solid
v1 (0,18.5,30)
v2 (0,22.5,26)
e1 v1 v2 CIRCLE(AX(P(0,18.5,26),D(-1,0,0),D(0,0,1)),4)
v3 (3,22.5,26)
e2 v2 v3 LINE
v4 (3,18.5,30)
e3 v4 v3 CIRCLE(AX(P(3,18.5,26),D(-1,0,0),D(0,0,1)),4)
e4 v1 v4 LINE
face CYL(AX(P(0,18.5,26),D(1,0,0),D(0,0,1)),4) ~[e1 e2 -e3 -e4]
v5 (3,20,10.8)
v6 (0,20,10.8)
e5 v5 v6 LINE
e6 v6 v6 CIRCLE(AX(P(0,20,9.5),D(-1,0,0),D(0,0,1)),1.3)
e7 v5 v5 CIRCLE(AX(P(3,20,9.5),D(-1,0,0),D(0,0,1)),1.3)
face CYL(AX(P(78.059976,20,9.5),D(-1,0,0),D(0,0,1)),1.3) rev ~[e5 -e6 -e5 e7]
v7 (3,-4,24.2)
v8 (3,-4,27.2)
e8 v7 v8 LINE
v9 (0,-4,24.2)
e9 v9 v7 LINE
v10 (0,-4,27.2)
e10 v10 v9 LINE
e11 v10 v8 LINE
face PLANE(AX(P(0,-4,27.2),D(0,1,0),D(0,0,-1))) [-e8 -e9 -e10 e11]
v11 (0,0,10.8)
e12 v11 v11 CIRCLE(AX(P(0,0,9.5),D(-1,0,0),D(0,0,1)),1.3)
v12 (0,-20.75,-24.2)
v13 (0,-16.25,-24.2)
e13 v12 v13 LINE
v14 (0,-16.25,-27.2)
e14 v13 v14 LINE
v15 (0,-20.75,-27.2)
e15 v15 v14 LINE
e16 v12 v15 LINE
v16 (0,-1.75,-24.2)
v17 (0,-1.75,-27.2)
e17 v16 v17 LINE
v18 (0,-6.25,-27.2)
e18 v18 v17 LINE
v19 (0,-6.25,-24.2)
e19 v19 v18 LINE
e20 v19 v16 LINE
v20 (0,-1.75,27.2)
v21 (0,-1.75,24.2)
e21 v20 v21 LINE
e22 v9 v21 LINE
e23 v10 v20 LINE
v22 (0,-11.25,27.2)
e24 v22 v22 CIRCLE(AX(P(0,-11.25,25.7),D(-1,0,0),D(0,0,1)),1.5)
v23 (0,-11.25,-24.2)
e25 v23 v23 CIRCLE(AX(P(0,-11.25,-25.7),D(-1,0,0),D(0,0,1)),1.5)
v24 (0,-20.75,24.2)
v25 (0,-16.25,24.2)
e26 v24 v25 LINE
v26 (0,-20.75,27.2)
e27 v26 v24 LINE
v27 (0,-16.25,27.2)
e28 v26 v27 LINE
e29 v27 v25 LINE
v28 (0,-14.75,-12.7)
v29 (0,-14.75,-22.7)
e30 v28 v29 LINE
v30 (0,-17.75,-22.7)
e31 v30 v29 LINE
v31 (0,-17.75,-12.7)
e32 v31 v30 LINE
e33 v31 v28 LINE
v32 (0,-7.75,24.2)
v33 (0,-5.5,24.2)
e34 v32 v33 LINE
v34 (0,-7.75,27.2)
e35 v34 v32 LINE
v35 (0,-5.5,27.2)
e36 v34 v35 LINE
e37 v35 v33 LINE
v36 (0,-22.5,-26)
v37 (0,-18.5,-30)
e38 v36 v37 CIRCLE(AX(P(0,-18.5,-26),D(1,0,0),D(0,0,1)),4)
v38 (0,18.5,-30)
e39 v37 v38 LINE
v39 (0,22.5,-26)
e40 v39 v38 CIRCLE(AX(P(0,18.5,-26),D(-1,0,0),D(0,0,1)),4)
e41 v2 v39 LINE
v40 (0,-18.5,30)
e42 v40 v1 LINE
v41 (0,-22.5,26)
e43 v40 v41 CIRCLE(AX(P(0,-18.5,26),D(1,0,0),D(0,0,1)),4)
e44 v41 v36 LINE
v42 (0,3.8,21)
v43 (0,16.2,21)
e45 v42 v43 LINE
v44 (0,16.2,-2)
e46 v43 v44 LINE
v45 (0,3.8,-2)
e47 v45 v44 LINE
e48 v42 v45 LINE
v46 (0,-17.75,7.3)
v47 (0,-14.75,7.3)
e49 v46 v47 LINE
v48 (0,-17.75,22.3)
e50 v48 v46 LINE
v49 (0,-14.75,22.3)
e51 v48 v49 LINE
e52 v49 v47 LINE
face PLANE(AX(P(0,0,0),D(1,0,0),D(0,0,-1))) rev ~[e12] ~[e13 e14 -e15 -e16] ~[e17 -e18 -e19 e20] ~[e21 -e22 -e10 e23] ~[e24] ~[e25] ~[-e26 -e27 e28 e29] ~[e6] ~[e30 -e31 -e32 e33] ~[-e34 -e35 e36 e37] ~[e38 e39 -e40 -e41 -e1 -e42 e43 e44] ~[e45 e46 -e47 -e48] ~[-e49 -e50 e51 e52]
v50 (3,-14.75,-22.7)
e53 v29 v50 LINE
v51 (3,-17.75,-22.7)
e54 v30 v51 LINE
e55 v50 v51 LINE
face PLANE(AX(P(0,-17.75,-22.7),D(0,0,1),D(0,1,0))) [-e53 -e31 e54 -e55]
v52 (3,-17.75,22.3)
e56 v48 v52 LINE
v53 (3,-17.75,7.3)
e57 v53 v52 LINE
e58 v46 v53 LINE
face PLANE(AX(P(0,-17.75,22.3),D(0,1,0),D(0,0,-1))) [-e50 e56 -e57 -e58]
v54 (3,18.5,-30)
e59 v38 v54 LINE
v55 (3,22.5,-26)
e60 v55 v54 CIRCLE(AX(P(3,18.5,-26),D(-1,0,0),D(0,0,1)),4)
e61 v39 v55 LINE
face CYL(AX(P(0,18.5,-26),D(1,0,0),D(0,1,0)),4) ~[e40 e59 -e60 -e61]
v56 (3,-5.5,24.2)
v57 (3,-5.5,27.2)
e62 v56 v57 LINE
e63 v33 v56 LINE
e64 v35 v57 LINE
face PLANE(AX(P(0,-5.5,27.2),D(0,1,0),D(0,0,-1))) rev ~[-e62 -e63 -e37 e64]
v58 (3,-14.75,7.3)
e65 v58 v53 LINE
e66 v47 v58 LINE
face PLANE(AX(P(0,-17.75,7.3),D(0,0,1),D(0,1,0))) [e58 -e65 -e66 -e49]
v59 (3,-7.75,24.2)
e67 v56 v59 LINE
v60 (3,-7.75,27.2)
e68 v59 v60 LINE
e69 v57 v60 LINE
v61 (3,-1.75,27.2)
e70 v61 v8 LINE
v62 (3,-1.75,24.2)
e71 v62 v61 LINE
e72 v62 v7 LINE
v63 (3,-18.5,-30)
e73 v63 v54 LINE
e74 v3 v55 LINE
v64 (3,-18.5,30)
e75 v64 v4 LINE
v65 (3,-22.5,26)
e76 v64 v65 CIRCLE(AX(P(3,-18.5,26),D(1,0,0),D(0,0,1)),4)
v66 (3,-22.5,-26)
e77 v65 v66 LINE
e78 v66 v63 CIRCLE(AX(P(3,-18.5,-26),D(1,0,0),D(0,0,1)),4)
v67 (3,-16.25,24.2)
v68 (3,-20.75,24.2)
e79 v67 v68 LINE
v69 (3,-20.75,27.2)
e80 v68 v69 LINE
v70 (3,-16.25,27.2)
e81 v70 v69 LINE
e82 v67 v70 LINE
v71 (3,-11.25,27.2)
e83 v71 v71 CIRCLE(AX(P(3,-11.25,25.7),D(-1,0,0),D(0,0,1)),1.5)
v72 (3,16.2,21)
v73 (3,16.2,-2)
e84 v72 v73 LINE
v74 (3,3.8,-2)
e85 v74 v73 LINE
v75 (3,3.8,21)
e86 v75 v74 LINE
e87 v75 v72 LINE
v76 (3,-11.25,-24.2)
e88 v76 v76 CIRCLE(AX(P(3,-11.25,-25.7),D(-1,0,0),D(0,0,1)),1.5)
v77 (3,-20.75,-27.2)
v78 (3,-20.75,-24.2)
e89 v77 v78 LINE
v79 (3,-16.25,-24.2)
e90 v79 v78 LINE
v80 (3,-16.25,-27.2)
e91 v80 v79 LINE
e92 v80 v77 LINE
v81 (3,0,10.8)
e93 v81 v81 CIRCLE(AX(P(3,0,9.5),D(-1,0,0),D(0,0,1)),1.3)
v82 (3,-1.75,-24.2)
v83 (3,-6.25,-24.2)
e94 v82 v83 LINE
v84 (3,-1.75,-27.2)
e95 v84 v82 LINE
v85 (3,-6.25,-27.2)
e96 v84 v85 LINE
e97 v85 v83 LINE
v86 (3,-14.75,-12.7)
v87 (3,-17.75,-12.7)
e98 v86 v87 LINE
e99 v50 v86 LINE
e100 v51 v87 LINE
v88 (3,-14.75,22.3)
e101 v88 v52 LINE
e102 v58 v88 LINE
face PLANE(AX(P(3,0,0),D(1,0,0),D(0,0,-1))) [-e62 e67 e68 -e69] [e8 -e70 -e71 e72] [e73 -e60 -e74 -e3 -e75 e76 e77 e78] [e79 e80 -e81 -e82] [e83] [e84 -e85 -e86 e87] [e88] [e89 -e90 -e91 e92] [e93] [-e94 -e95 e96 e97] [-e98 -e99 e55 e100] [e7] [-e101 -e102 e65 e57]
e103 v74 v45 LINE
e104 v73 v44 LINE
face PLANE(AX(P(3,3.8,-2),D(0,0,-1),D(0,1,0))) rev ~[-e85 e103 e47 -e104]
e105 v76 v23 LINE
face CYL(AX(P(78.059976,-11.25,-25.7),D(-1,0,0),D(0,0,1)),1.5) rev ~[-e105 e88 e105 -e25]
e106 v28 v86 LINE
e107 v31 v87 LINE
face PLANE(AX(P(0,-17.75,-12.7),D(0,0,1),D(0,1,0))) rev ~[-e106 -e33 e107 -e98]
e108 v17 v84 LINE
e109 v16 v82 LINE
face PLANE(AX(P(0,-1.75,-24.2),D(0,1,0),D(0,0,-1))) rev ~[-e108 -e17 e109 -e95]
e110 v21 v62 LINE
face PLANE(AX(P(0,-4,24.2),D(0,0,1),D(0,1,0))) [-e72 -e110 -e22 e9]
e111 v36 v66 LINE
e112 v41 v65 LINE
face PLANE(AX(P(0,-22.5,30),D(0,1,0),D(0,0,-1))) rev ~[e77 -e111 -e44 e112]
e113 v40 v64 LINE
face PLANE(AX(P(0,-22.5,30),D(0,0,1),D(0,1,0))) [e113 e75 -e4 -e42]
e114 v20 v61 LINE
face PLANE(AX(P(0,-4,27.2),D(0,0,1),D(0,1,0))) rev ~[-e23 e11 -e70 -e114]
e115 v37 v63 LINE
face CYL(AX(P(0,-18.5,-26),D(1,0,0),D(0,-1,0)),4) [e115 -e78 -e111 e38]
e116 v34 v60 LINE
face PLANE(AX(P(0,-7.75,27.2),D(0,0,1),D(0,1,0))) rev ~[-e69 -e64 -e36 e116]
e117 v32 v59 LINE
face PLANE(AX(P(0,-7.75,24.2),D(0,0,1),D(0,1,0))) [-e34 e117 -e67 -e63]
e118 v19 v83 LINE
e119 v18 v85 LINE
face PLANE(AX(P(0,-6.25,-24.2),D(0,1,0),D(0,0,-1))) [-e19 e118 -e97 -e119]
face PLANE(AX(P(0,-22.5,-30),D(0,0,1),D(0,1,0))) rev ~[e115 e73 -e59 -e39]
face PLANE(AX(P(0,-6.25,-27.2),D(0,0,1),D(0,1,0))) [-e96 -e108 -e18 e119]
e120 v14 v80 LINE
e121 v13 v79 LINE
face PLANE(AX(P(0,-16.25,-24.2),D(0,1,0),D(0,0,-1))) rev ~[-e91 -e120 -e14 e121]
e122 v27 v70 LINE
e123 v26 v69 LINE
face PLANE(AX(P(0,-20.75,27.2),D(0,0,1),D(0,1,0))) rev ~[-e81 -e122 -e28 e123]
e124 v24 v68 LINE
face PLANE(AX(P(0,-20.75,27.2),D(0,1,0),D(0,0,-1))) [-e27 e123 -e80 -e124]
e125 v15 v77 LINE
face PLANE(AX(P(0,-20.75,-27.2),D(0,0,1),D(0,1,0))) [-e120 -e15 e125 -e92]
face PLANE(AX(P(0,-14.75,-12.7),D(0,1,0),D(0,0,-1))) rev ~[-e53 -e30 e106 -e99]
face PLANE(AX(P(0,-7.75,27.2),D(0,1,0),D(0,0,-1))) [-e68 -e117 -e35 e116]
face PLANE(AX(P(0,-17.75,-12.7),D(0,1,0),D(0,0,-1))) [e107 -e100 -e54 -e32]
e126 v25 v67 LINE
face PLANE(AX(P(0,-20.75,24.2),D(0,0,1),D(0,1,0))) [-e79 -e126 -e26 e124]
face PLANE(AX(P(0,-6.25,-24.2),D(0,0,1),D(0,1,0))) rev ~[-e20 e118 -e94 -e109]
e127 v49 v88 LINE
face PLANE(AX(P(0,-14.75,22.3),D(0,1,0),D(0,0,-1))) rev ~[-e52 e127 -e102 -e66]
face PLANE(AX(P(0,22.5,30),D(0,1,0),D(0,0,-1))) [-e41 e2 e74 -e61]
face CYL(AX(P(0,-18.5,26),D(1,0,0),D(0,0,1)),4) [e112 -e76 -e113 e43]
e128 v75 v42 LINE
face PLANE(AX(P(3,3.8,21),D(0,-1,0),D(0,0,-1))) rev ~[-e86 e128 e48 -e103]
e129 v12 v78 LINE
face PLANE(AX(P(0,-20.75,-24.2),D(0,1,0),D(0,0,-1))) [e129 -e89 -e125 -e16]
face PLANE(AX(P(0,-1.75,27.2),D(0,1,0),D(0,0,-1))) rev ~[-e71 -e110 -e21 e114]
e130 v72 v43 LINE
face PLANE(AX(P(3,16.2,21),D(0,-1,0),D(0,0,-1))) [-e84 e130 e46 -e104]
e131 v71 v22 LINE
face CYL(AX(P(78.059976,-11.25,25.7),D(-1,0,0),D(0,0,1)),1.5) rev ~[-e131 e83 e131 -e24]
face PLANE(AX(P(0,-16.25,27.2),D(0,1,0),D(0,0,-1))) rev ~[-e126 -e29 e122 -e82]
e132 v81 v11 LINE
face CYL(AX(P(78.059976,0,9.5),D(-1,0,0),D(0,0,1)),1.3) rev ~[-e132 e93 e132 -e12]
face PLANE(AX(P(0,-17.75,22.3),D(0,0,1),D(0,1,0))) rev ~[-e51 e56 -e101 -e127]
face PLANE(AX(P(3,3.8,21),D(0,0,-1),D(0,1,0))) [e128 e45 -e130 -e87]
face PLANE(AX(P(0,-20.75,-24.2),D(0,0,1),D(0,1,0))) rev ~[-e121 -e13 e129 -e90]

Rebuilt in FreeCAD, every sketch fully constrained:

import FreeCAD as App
import Part
import Sketcher
from FreeCAD import Vector


def edges_at(feature, points):
    """Names of the edges that pass closest to the given points."""
    edges = feature.Shape.Edges
    near = lambda p: min(range(len(edges)), key=lambda i: edges[i].distToShape(Part.Vertex(*p))[0])
    return sorted({f"Edge{near(p) + 1}" for p in points})


def add_polygon(sketch, points):
    """Adds a closed chain of lines whose ends are joined by coincident constraints."""
    first, n = sketch.GeometryCount, len(points)
    for a, b in zip(points, points[1:] + points[:1]):
        sketch.addGeometry(Part.LineSegment(App.Vector(*a, 0), App.Vector(*b, 0)), False)
    for i in range(n):
        sketch.addConstraint(Sketcher.Constraint("Coincident", first + i, 2, first + (i + 1) % n, 1))

doc = App.newDocument("Part")
params = doc.addObject("Spreadsheet::Sheet", "Params")
for row, (alias, value) in enumerate([
    ("sketch1_width", "45 mm"),
    ("sketch1_height", "60 mm"),
    ("pad1_length", "3 mm"),
    ("sketch2_diameter", "3 mm"),
    ("hole_diameter", "3 mm"),
    ("sketch3_height", "3 mm"),
    ("sketch3_width", "4.5 mm"),
    ("sketch3_width2", "2.25 mm"),
    ("sketch4_height", "23 mm"),
    ("sketch4_width", "12.4 mm"),
    ("sketch5_diameter", "2.6 mm"),
    ("hole2_diameter", "2.6 mm"),
    ("fillet_radius", "4 mm"),
    ("sketch6_width", "3 mm"),
    ("sketch6_height", "15 mm"),
    ("sketch6_height2", "10 mm"),
], start=1):
    params.set(f"A{row}", alias)
    params.set(f"B{row}", "=" + value)
    params.setAlias(f"B{row}", alias)

body = doc.addObject("PartDesign::Body", "Body")

sketch1 = body.newObject("Sketcher::SketchObject", "Sketch")
sketch1.AttachmentSupport = (doc.getObject("YZ_Plane"), [""])
sketch1.MapMode = "FlatFace"
add_polygon(sketch1, [(22, 30), (-22, 30), (-22, -30), (22, -30)])
sketch1.addConstraint(Sketcher.Constraint("Horizontal", 0))
sketch1.addConstraint(Sketcher.Constraint("Vertical", 1))
sketch1.addConstraint(Sketcher.Constraint("Horizontal", 2))
sketch1.addConstraint(Sketcher.Constraint("Vertical", 3))
sketch1.addConstraint(Sketcher.Constraint("Symmetric", 0, 2, 2, 2, -1, 1))
sketch1.addConstraint(Sketcher.Constraint("DistanceX", 0, 2, 0, 1, 45.0))
sketch1.addConstraint(Sketcher.Constraint("DistanceY", 1, 2, 1, 1, 60.0))
sketch1.setExpression("Constraints[9]", "Params.sketch1_width")
sketch1.setExpression("Constraints[10]", "Params.sketch1_height")
pad1 = body.newObject("PartDesign::Pad", "Pad")
pad1.Profile = sketch1
pad1.setExpression("Length", "Params.pad1_length")

sketch2 = body.newObject("Sketcher::SketchObject", "Sketch001")
sketch2.AttachmentSupport = (doc.getObject("YZ_Plane"), [""])
sketch2.MapMode = "FlatFace"
sketch2.AttachmentOffset = App.Placement(Vector(0, 0, 3), App.Rotation())
sketch2.addGeometry(Part.Circle(Vector(-11.2, 25.7, 0), Vector(0, 0, 1), 1.5), False)
sketch2.addGeometry(Part.Circle(Vector(-11.2, -25.7, 0), Vector(0, 0, 1), 1.5), False)
sketch2.addConstraint(Sketcher.Constraint("Equal", 0, 1))
sketch2.addConstraint(Sketcher.Constraint("Symmetric", 0, 3, 1, 3, -1))
sketch2.addConstraint(Sketcher.Constraint("Diameter", 0, 3.0))
sketch2.addConstraint(Sketcher.Constraint("DistanceY", -1, 1, 0, 3, 25.7))
sketch2.addConstraint(Sketcher.Constraint("DistanceX", 0, 3, -1, 1, 11.25))
sketch2.setExpression("Constraints[2]", "Params.sketch2_diameter")
doc.recompute()
hole = body.newObject("PartDesign::Hole", "Hole")
hole.Profile = sketch2
hole.ThreadType = "None"
hole.setExpression("Diameter", "Params.hole_diameter")
hole.DepthType = "ThroughAll"

sketch3 = body.newObject("Sketcher::SketchObject", "Sketch002")
sketch3.AttachmentSupport = (doc.getObject("YZ_Plane"), [""])
sketch3.MapMode = "FlatFace"
add_polygon(sketch3, [(-16.2, 27.2), (-20.8, 27.2), (-20.8, 24.2), (-16.2, 24.2)])
add_polygon(sketch3, [(-1.8, 27.2), (-4, 27.2), (-4, 24.2), (-1.8, 24.2)])
add_polygon(sketch3, [(-5.5, 27.2), (-7.8, 27.2), (-7.8, 24.2), (-5.5, 24.2)])
add_polygon(sketch3, [(-16.2, -24.2), (-20.8, -24.2), (-20.8, -27.2), (-16.2, -27.2)])
add_polygon(sketch3, [(-1.8, -24.2), (-6.2, -24.2), (-6.2, -27.2), (-1.8, -27.2)])
sketch3.addConstraint(Sketcher.Constraint("Horizontal", 0))
sketch3.addConstraint(Sketcher.Constraint("Vertical", 1))
sketch3.addConstraint(Sketcher.Constraint("Horizontal", 2))
sketch3.addConstraint(Sketcher.Constraint("Vertical", 3))
sketch3.addConstraint(Sketcher.Constraint("Horizontal", 4))
sketch3.addConstraint(Sketcher.Constraint("Vertical", 5))
sketch3.addConstraint(Sketcher.Constraint("Horizontal", 6))
sketch3.addConstraint(Sketcher.Constraint("Vertical", 7))
sketch3.addConstraint(Sketcher.Constraint("Horizontal", 8))
sketch3.addConstraint(Sketcher.Constraint("Vertical", 9))
sketch3.addConstraint(Sketcher.Constraint("Horizontal", 10))
sketch3.addConstraint(Sketcher.Constraint("Vertical", 11))
sketch3.addConstraint(Sketcher.Constraint("Horizontal", 12))
sketch3.addConstraint(Sketcher.Constraint("Vertical", 13))
sketch3.addConstraint(Sketcher.Constraint("Horizontal", 14))
sketch3.addConstraint(Sketcher.Constraint("Vertical", 15))
sketch3.addConstraint(Sketcher.Constraint("Horizontal", 16))
sketch3.addConstraint(Sketcher.Constraint("Vertical", 17))
sketch3.addConstraint(Sketcher.Constraint("Horizontal", 18))
sketch3.addConstraint(Sketcher.Constraint("Vertical", 19))
sketch3.addConstraint(Sketcher.Constraint("Symmetric", 1, 2, 12, 2, -1))
sketch3.addConstraint(Sketcher.Constraint("Symmetric", 3, 2, 14, 2, -1))
sketch3.addConstraint(Sketcher.Constraint("Symmetric", 7, 2, 18, 2, -1))
sketch3.addConstraint(Sketcher.Constraint("Horizontal", 3, 2, 4, 2))
sketch3.addConstraint(Sketcher.Constraint("Horizontal", 2, 2, 5, 2))
sketch3.addConstraint(Sketcher.Constraint("Horizontal", 7, 2, 8, 2))
sketch3.addConstraint(Sketcher.Constraint("Horizontal", 6, 2, 9, 2))
sketch3.addConstraint(Sketcher.Constraint("Horizontal", 15, 2, 16, 2))
sketch3.addConstraint(Sketcher.Constraint("Equal", 6, 8))
sketch3.addConstraint(Sketcher.Constraint("Equal", 14, 16))
sketch3.addConstraint(Sketcher.Constraint("DistanceY", 1, 2, 1, 1, 3.0))
sketch3.addConstraint(Sketcher.Constraint("DistanceX", 0, 2, 0, 1, 4.5))
sketch3.addConstraint(Sketcher.Constraint("DistanceX", 4, 2, -1, 1, 4.0))
sketch3.addConstraint(Sketcher.Constraint("DistanceX", 1, 2, 6, 2, 19.0))
sketch3.addConstraint(Sketcher.Constraint("DistanceX", 8, 2, 7, 2, 6.0))
sketch3.addConstraint(Sketcher.Constraint("DistanceX", 4, 2, 4, 1, 2.25))
sketch3.addConstraint(Sketcher.Constraint("DistanceY", -1, 1, 0, 2, 27.2))
sketch3.setExpression("Constraints[50]", "Params.sketch3_height")
sketch3.setExpression("Constraints[51]", "Params.sketch3_width")
sketch3.setExpression("Constraints[55]", "Params.sketch3_width2")
pocket1 = body.newObject("PartDesign::Pocket", "Pocket")
pocket1.Profile = sketch3
pocket1.Type = "ThroughAll"
pocket1.Reversed = True

sketch4 = body.newObject("Sketcher::SketchObject", "Sketch003")
sketch4.AttachmentSupport = (doc.getObject("YZ_Plane"), [""])
sketch4.MapMode = "FlatFace"
sketch4.AttachmentOffset = App.Placement(Vector(0, 0, 3), App.Rotation())
add_polygon(sketch4, [(16, 21), (4, 21), (4, -2), (16, -2)])
sketch4.addConstraint(Sketcher.Constraint("Horizontal", 0))
sketch4.addConstraint(Sketcher.Constraint("Vertical", 1))
sketch4.addConstraint(Sketcher.Constraint("Horizontal", 2))
sketch4.addConstraint(Sketcher.Constraint("Vertical", 3))
sketch4.addConstraint(Sketcher.Constraint("DistanceY", 1, 2, 1, 1, 23.0))
sketch4.addConstraint(Sketcher.Constraint("DistanceX", 0, 2, 0, 1, 12.4))
sketch4.addConstraint(Sketcher.Constraint("DistanceY", -1, 1, 0, 2, 21.0))
sketch4.addConstraint(Sketcher.Constraint("DistanceX", -1, 1, 0, 2, 3.8))
sketch4.setExpression("Constraints[8]", "Params.sketch4_height")
sketch4.setExpression("Constraints[9]", "Params.sketch4_width")
pocket2 = body.newObject("PartDesign::Pocket", "Pocket001")
pocket2.Profile = sketch4
pocket2.Type = "ThroughAll"

sketch5 = body.newObject("Sketcher::SketchObject", "Sketch004")
sketch5.AttachmentSupport = (doc.getObject("YZ_Plane"), [""])
sketch5.MapMode = "FlatFace"
sketch5.AttachmentOffset = App.Placement(Vector(0, 0, 3), App.Rotation())
sketch5.addGeometry(Part.Circle(Vector(20, 9.5, 0), Vector(0, 0, 1), 1.3), False)
sketch5.addGeometry(Part.Circle(Vector(0, 9.5, 0), Vector(0, 0, 1), 1.3), False)
sketch5.addConstraint(Sketcher.Constraint("Equal", 0, 1))
sketch5.addConstraint(Sketcher.Constraint("PointOnObject", 1, 3, -2))
sketch5.addConstraint(Sketcher.Constraint("Horizontal", 0, 3, 1, 3))
sketch5.addConstraint(Sketcher.Constraint("Diameter", 0, 2.6))
sketch5.addConstraint(Sketcher.Constraint("DistanceX", -1, 1, 0, 3, 20.0))
sketch5.addConstraint(Sketcher.Constraint("DistanceY", -1, 1, 0, 3, 9.5))
sketch5.setExpression("Constraints[3]", "Params.sketch5_diameter")
doc.recompute()
hole2 = body.newObject("PartDesign::Hole", "Hole001")
hole2.Profile = sketch5
hole2.ThreadType = "None"
hole2.setExpression("Diameter", "Params.hole2_diameter")
hole2.DepthType = "ThroughAll"
doc.recompute()

fillet = body.newObject("PartDesign::Fillet", "Fillet")
fillet.Base = (hole2, edges_at(hole2, [
    (1.5, 22.5, 30),
    (1.5, 22.5, -30),
    (1.5, -22.5, -30),
    (1.5, -22.5, 30),
]))
fillet.setExpression("Radius", "Params.fillet_radius")

sketch6 = body.newObject("Sketcher::SketchObject", "Sketch005")
sketch6.AttachmentSupport = (doc.getObject("YZ_Plane"), [""])
sketch6.MapMode = "FlatFace"
add_polygon(sketch6, [(-14.8, 22.3), (-17.8, 22.3), (-17.8, 7.3), (-14.8, 7.3)])
add_polygon(sketch6, [(-14.8, -12.7), (-17.8, -12.7), (-17.8, -22.7), (-14.8, -22.7)])
sketch6.addConstraint(Sketcher.Constraint("Horizontal", 0))
sketch6.addConstraint(Sketcher.Constraint("Vertical", 1))
sketch6.addConstraint(Sketcher.Constraint("Horizontal", 2))
sketch6.addConstraint(Sketcher.Constraint("Vertical", 3))
sketch6.addConstraint(Sketcher.Constraint("Horizontal", 4))
sketch6.addConstraint(Sketcher.Constraint("Vertical", 5))
sketch6.addConstraint(Sketcher.Constraint("Horizontal", 6))
sketch6.addConstraint(Sketcher.Constraint("Vertical", 7))
sketch6.addConstraint(Sketcher.Constraint("Vertical", 1, 2, 4, 2))
sketch6.addConstraint(Sketcher.Constraint("Vertical", 3, 2, 6, 2))
sketch6.addConstraint(Sketcher.Constraint("DistanceX", 0, 2, 0, 1, 3.0))
sketch6.addConstraint(Sketcher.Constraint("DistanceY", 1, 2, 1, 1, 15.0))
sketch6.addConstraint(Sketcher.Constraint("DistanceY", 5, 2, 5, 1, 10.0))
sketch6.addConstraint(Sketcher.Constraint("DistanceY", 4, 2, 1, 2, 20.0))
sketch6.addConstraint(Sketcher.Constraint("DistanceY", -1, 1, 0, 2, 22.3))
sketch6.addConstraint(Sketcher.Constraint("DistanceX", 0, 2, -1, 1, 17.75))
sketch6.setExpression("Constraints[18]", "Params.sketch6_width")
sketch6.setExpression("Constraints[19]", "Params.sketch6_height")
sketch6.setExpression("Constraints[20]", "Params.sketch6_height2")
pocket3 = body.newObject("PartDesign::Pocket", "Pocket002")
pocket3.Profile = sketch6
pocket3.Type = "ThroughAll"
pocket3.Reversed = True

doc.recompute()
